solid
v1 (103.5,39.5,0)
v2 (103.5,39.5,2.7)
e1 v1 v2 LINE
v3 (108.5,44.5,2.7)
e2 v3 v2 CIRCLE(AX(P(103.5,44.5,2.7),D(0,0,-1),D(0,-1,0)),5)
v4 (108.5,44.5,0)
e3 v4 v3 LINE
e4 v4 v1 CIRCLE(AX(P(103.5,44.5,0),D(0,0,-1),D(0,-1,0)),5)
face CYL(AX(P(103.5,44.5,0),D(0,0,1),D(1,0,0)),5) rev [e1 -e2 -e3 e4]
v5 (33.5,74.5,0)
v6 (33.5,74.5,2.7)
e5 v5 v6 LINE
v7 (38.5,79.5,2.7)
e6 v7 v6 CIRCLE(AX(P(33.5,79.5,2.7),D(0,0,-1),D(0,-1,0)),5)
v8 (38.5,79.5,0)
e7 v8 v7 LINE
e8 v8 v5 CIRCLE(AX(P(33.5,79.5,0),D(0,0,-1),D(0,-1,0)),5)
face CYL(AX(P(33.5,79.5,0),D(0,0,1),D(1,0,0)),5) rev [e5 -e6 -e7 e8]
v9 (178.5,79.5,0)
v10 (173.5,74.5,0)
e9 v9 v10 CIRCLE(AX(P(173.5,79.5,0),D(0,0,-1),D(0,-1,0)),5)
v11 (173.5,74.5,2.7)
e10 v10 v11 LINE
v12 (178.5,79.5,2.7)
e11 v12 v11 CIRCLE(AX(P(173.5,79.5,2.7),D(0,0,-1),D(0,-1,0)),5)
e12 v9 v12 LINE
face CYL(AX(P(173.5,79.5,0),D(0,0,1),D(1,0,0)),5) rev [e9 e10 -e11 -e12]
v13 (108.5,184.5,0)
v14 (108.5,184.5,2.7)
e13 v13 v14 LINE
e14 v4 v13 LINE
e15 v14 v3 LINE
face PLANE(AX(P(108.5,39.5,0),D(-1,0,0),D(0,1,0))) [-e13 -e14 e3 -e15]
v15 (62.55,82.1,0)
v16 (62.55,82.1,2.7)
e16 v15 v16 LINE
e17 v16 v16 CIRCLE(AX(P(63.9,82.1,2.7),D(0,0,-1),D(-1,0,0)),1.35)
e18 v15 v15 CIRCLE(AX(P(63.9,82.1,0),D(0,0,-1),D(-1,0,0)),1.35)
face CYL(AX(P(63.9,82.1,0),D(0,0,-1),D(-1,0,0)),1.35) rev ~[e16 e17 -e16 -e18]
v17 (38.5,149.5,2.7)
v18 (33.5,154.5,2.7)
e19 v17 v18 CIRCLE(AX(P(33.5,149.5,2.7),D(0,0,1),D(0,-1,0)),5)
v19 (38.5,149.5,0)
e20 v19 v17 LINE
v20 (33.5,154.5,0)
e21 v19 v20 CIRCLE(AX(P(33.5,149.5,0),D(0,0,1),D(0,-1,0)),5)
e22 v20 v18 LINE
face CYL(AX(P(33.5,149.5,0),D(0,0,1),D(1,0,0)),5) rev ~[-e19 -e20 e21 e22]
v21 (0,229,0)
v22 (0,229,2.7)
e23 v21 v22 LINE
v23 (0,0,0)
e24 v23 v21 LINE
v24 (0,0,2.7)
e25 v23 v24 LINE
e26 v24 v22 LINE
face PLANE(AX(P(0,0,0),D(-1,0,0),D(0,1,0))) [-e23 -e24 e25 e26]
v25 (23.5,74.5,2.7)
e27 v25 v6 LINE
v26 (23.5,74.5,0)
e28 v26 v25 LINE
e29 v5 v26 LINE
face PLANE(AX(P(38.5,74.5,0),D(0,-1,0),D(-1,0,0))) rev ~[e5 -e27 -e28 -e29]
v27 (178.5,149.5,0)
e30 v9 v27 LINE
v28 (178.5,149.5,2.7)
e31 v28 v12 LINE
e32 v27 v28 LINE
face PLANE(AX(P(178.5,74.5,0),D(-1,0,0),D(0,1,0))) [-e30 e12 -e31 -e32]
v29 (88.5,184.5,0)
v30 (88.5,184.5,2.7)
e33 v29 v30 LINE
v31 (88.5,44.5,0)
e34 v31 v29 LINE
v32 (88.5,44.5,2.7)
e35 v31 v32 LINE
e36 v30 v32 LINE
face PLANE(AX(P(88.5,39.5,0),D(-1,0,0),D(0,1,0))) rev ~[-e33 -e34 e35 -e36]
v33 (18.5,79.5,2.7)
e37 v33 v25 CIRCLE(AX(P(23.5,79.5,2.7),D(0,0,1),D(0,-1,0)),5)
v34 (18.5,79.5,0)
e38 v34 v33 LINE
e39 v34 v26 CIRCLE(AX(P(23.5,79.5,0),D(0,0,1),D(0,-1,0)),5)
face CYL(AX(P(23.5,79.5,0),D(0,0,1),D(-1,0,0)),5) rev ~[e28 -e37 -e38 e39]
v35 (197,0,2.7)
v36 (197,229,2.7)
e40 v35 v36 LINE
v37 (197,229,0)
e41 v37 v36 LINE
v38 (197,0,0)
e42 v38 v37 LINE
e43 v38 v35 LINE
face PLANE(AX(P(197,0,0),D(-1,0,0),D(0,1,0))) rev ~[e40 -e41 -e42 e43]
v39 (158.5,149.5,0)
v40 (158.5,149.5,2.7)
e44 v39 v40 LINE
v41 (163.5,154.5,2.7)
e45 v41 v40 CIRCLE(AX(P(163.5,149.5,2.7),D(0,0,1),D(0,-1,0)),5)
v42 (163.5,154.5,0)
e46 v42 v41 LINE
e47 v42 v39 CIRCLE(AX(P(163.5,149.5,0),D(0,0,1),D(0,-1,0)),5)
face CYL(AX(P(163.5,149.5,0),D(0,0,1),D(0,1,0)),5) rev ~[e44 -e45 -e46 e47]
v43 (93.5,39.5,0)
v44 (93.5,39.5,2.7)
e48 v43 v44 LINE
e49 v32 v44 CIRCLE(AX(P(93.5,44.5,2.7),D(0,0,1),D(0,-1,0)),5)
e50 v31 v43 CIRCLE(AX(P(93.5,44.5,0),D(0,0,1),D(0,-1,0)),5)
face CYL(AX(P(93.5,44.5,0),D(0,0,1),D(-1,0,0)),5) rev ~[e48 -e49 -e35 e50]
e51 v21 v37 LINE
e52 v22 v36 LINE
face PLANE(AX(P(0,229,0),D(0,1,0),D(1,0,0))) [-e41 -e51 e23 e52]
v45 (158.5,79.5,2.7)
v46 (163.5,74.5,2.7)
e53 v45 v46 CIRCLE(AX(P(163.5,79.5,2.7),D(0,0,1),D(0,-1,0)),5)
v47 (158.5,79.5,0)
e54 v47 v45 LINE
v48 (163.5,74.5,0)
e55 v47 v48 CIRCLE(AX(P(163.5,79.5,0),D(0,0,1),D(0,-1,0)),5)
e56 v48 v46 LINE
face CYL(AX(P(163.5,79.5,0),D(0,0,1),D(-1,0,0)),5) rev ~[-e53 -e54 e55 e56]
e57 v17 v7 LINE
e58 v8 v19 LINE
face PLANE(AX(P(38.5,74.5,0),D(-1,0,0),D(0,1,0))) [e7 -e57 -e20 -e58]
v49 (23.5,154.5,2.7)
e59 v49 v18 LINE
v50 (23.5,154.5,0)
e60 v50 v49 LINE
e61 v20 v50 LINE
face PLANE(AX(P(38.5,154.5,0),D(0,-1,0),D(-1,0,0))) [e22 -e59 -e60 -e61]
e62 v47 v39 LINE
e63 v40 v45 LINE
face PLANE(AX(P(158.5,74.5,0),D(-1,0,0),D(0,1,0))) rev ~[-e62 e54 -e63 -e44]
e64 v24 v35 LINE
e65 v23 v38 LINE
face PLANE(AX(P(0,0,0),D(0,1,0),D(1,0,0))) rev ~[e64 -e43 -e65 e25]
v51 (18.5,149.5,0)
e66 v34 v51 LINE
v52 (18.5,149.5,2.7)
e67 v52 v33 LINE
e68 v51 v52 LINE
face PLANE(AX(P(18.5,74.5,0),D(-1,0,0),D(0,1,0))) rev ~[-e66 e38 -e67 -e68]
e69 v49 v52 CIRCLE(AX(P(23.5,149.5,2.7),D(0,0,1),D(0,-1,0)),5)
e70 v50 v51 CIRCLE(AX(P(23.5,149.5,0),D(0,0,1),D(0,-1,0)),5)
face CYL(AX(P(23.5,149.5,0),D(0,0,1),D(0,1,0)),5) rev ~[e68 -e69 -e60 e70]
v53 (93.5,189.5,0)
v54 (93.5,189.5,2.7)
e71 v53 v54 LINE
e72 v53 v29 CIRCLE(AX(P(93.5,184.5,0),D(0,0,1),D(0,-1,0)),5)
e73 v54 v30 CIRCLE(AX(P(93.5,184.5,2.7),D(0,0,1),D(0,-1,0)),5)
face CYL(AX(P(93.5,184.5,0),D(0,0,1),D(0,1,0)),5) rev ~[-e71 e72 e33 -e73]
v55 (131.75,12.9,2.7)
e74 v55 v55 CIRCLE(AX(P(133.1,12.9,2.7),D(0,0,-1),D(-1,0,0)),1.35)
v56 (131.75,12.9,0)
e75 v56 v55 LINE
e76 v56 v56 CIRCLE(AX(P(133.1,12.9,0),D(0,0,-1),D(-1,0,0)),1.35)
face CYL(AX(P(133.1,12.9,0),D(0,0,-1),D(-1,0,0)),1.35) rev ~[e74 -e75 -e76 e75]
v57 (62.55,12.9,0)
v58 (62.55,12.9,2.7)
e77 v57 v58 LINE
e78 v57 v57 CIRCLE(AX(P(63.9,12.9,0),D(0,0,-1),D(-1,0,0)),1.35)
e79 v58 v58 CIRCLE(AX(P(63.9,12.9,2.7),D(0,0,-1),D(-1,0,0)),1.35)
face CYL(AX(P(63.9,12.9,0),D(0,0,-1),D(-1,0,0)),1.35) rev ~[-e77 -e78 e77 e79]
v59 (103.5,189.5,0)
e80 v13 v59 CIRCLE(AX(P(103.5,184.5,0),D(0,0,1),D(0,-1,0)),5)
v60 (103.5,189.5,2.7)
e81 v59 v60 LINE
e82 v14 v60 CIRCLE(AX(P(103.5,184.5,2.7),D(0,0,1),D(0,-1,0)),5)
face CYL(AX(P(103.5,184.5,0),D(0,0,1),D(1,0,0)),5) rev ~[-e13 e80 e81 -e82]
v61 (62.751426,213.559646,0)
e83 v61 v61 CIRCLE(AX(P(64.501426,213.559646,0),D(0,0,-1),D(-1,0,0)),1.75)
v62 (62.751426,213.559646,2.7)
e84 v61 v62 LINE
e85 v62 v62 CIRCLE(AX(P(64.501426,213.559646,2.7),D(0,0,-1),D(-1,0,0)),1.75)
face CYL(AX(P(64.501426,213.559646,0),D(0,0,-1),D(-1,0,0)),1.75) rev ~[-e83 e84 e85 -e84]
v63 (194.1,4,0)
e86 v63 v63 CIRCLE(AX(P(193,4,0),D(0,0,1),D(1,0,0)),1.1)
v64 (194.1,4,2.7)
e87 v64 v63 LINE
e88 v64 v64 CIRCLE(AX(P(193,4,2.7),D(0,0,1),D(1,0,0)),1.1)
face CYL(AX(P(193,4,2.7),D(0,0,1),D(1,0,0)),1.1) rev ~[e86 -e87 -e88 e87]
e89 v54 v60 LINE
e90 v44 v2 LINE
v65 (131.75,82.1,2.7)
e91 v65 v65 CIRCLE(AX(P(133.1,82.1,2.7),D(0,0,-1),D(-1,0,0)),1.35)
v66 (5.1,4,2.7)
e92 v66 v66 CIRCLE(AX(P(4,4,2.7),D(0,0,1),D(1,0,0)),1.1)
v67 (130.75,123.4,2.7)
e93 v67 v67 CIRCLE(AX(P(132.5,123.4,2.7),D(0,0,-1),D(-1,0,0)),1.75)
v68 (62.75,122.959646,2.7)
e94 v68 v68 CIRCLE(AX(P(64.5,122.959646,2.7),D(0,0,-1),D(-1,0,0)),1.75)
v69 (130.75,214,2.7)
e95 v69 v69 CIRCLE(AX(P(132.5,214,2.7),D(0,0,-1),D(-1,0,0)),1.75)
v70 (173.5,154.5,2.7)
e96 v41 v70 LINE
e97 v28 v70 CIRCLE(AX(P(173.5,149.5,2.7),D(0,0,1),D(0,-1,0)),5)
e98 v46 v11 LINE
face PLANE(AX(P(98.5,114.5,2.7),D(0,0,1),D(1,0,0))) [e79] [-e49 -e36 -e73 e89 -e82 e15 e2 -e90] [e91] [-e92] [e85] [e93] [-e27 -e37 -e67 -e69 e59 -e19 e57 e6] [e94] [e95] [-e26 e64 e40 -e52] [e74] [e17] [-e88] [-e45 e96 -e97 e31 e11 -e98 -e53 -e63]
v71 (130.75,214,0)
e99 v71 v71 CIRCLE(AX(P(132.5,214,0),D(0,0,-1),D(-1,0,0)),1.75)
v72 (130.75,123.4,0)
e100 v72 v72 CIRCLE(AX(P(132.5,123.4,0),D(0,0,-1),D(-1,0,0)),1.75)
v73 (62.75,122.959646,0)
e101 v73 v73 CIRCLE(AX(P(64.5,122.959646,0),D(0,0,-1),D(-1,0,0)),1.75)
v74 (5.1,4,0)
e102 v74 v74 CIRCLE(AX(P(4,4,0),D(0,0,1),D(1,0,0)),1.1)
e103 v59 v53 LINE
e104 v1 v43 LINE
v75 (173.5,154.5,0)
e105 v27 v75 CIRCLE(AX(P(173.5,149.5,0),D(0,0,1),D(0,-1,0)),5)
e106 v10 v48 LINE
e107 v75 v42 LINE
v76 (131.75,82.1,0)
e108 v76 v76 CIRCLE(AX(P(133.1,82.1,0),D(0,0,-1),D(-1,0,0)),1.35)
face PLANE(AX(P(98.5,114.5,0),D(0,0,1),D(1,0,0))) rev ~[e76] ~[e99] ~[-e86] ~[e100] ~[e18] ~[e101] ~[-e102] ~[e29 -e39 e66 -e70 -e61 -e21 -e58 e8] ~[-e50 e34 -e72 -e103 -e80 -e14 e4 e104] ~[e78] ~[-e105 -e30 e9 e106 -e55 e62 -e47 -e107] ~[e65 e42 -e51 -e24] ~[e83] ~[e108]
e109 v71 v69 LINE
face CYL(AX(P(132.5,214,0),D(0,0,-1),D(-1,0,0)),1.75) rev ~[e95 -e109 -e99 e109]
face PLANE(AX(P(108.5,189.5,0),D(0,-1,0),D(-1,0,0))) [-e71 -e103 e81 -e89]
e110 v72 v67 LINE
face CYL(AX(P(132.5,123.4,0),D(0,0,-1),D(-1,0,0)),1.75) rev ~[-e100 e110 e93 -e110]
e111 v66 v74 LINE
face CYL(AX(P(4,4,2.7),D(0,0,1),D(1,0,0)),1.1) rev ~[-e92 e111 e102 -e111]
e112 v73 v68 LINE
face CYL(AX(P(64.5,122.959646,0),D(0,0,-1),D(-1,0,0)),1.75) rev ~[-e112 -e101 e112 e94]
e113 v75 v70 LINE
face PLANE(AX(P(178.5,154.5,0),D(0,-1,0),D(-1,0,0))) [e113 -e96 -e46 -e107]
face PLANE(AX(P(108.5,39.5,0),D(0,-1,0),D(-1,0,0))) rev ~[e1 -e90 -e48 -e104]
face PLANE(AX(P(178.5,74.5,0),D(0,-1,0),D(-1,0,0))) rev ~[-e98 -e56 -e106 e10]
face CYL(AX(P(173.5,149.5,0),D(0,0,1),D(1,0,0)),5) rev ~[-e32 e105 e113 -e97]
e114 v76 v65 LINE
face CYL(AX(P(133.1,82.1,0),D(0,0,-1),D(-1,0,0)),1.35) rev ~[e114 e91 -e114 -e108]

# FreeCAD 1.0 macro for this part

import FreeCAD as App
import Part
import Sketcher
from FreeCAD import Vector


def edges_at(feature, points):
    """Names of the edges that pass closest to the given points."""
    edges = feature.Shape.Edges
    near = lambda p: min(range(len(edges)), key=lambda i: edges[i].distToShape(Part.Vertex(*p))[0])
    return sorted({f"Edge{near(p) + 1}" for p in points})

doc = App.newDocument("Part")
body = doc.addObject("PartDesign::Body", "Body")

sketch1 = doc.addObject("Sketcher::SketchObject", "Sketch")
body.addObject(sketch1)
sketch1.AttachmentSupport = (doc.XY_Plane, [""])
sketch1.MapMode = "FlatFace"
sketch1.addGeometry(Part.LineSegment(Vector(0, 229, 0), Vector(0, 0, 0)), False)
sketch1.addGeometry(Part.LineSegment(Vector(0, 0, 0), Vector(197, 0, 0)), False)
sketch1.addGeometry(Part.LineSegment(Vector(197, 0, 0), Vector(197, 229, 0)), False)
sketch1.addGeometry(Part.LineSegment(Vector(197, 229, 0), Vector(0, 229, 0)), False)
sketch1.addConstraint(Sketcher.Constraint("Coincident", 0, 2, 1, 1))
sketch1.addConstraint(Sketcher.Constraint("Coincident", 1, 2, 2, 1))
sketch1.addConstraint(Sketcher.Constraint("Coincident", 2, 2, 3, 1))
sketch1.addConstraint(Sketcher.Constraint("Coincident", 3, 2, 0, 1))
sketch1.addConstraint(Sketcher.Constraint("Vertical", 0))
sketch1.addConstraint(Sketcher.Constraint("Horizontal", 1))
sketch1.addConstraint(Sketcher.Constraint("Vertical", 2))
sketch1.addConstraint(Sketcher.Constraint("Horizontal", 3))
sketch1.addConstraint(Sketcher.Constraint("Coincident", 0, 2, -1, 1))
sketch1.addConstraint(Sketcher.Constraint("DistanceX", 1, 1, 1, 2, 197.0))
sketch1.addConstraint(Sketcher.Constraint("DistanceY", 0, 2, 0, 1, 229.0))
pad1 = doc.addObject("PartDesign::Pad", "Pad")
body.addObject(pad1)
pad1.Profile = sketch1
pad1.Length = 2.7

sketch2 = doc.addObject("Sketcher::SketchObject", "Sketch001")
body.addObject(sketch2)
sketch2.AttachmentSupport = (doc.XY_Plane, [""])
sketch2.MapMode = "FlatFace"
sketch2.AttachmentOffset = App.Placement(Vector(0, 0, 2.7), App.Rotation())
sketch2.addGeometry(Part.Circle(Vector(4, 4, 0), Vector(0, 0, 1), 1.1), False)
sketch2.addGeometry(Part.Circle(Vector(193, 4, 0), Vector(0, 0, 1), 1.1), False)
sketch2.addConstraint(Sketcher.Constraint("Equal", 0, 1))
sketch2.addConstraint(Sketcher.Constraint("Horizontal", 0, 3, 1, 3))
sketch2.addConstraint(Sketcher.Constraint("Diameter", 0, 2.2))
sketch2.addConstraint(Sketcher.Constraint("DistanceX", -1, 1, 0, 3, 4.0))
sketch2.addConstraint(Sketcher.Constraint("DistanceY", -1, 1, 0, 3, 4.0))
sketch2.addConstraint(Sketcher.Constraint("DistanceX", -1, 1, 1, 3, 193.0))
pocket1 = doc.addObject("PartDesign::Pocket", "Pocket")
body.addObject(pocket1)
pocket1.Profile = sketch2
pocket1.Length = 2.85

sketch3 = doc.addObject("Sketcher::SketchObject", "Sketch002")
body.addObject(sketch3)
sketch3.AttachmentSupport = (doc.XY_Plane, [""])
sketch3.MapMode = "FlatFace"
sketch3.addGeometry(Part.Circle(Vector(133.1, 12.9, 0), Vector(0, 0, 1), 1.4), False)
sketch3.addGeometry(Part.Circle(Vector(133.1, 82.1, 0), Vector(0, 0, 1), 1.4), False)
sketch3.addGeometry(Part.Circle(Vector(63.9, 82.1, 0), Vector(0, 0, 1), 1.4), False)
sketch3.addGeometry(Part.Circle(Vector(63.9, 12.9, 0), Vector(0, 0, 1), 1.4), False)
sketch3.addConstraint(Sketcher.Constraint("Equal", 0, 1))
sketch3.addConstraint(Sketcher.Constraint("Equal", 1, 2))
sketch3.addConstraint(Sketcher.Constraint("Equal", 2, 3))
sketch3.addConstraint(Sketcher.Constraint("Horizontal", 1, 3, 2, 3))
sketch3.addConstraint(Sketcher.Constraint("Horizontal", 0, 3, 3, 3))
sketch3.addConstraint(Sketcher.Constraint("Vertical", 0, 3, 1, 3))
sketch3.addConstraint(Sketcher.Constraint("Vertical", 2, 3, 3, 3))
sketch3.addConstraint(Sketcher.Constraint("Diameter", 0, 2.7))
sketch3.addConstraint(Sketcher.Constraint("DistanceX", -1, 1, 0, 3, 133.1))
sketch3.addConstraint(Sketcher.Constraint("DistanceY", -1, 1, 0, 3, 12.9))
sketch3.addConstraint(Sketcher.Constraint("DistanceY", -1, 1, 1, 3, 82.1))
sketch3.addConstraint(Sketcher.Constraint("DistanceX", -1, 1, 2, 3, 63.9))
pocket2 = doc.addObject("PartDesign::Pocket", "Pocket001")
body.addObject(pocket2)
pocket2.Profile = sketch3
pocket2.Length = 9
pocket2.Reversed = True

sketch4 = doc.addObject("Sketcher::SketchObject", "Sketch003")
body.addObject(sketch4)
sketch4.AttachmentSupport = (doc.XY_Plane, [""])
sketch4.MapMode = "FlatFace"
sketch4.addGeometry(Part.Circle(Vector(132.5, 214, 0), Vector(0, 0, 1), 1.8), False)
sketch4.addGeometry(Part.Circle(Vector(64.5, 213.6, 0), Vector(0, 0, 1), 1.8), False)
sketch4.addGeometry(Part.Circle(Vector(132.5, 123.4, 0), Vector(0, 0, 1), 1.8), False)
sketch4.addGeometry(Part.Circle(Vector(64.5, 123, 0), Vector(0, 0, 1), 1.8), False)
sketch4.addConstraint(Sketcher.Constraint("Equal", 0, 1))
sketch4.addConstraint(Sketcher.Constraint("Equal", 1, 2))
sketch4.addConstraint(Sketcher.Constraint("Equal", 2, 3))
sketch4.addConstraint(Sketcher.Constraint("Vertical", 0, 3, 2, 3))
sketch4.addConstraint(Sketcher.Constraint("Diameter", 0, 3.5))
sketch4.addConstraint(Sketcher.Constraint("DistanceY", -1, 1, 0, 3, 214.0))
sketch4.addConstraint(Sketcher.Constraint("DistanceX", 3, 3, 2, 3, 68.0))
sketch4.addConstraint(Sketcher.Constraint("DistanceX", -1, 1, 0, 3, 132.5))
sketch4.addConstraint(Sketcher.Constraint("DistanceY", -1, 1, 2, 3, 123.4))
sketch4.addConstraint(Sketcher.Constraint("DistanceY", 3, 3, 1, 3, 90.6))
sketch4.addConstraint(Sketcher.Constraint("DistanceX", -1, 1, 1, 3, 64.501426))
sketch4.addConstraint(Sketcher.Constraint("DistanceY", -1, 1, 1, 3, 213.559646))
pocket3 = doc.addObject("PartDesign::Pocket", "Pocket002")
body.addObject(pocket3)
pocket3.Profile = sketch4
pocket3.Length = 10
pocket3.Reversed = True

sketch5 = doc.addObject("Sketcher::SketchObject", "Sketch004")
body.addObject(sketch5)
sketch5.AttachmentSupport = (doc.XY_Plane, [""])
sketch5.MapMode = "FlatFace"
sketch5.addGeometry(Part.LineSegment(Vector(178, 154, 0), Vector(178, 74, 0)), False)
sketch5.addGeometry(Part.LineSegment(Vector(178, 74, 0), Vector(158, 74, 0)), False)
sketch5.addGeometry(Part.LineSegment(Vector(158, 74, 0), Vector(158, 154, 0)), False)
sketch5.addGeometry(Part.LineSegment(Vector(158, 154, 0), Vector(178, 154, 0)), False)
sketch5.addGeometry(Part.LineSegment(Vector(38, 154, 0), Vector(38, 74, 0)), False)
sketch5.addGeometry(Part.LineSegment(Vector(38, 74, 0), Vector(18, 74, 0)), False)
sketch5.addGeometry(Part.LineSegment(Vector(18, 74, 0), Vector(18, 154, 0)), False)
sketch5.addGeometry(Part.LineSegment(Vector(18, 154, 0), Vector(38, 154, 0)), False)
sketch5.addGeometry(Part.LineSegment(Vector(108, 190, 0), Vector(108, 40, 0)), False)
sketch5.addGeometry(Part.LineSegment(Vector(108, 40, 0), Vector(88, 40, 0)), False)
sketch5.addGeometry(Part.LineSegment(Vector(88, 40, 0), Vector(88, 190, 0)), False)
sketch5.addGeometry(Part.LineSegment(Vector(88, 190, 0), Vector(108, 190, 0)), False)
sketch5.addConstraint(Sketcher.Constraint("Coincident", 0, 2, 1, 1))
sketch5.addConstraint(Sketcher.Constraint("Coincident", 1, 2, 2, 1))
sketch5.addConstraint(Sketcher.Constraint("Coincident", 2, 2, 3, 1))
sketch5.addConstraint(Sketcher.Constraint("Coincident", 3, 2, 0, 1))
sketch5.addConstraint(Sketcher.Constraint("Coincident", 4, 2, 5, 1))
sketch5.addConstraint(Sketcher.Constraint("Coincident", 5, 2, 6, 1))
sketch5.addConstraint(Sketcher.Constraint("Coincident", 6, 2, 7, 1))
sketch5.addConstraint(Sketcher.Constraint("Coincident", 7, 2, 4, 1))
sketch5.addConstraint(Sketcher.Constraint("Coincident", 8, 2, 9, 1))
sketch5.addConstraint(Sketcher.Constraint("Coincident", 9, 2, 10, 1))
sketch5.addConstraint(Sketcher.Constraint("Coincident", 10, 2, 11, 1))
sketch5.addConstraint(Sketcher.Constraint("Coincident", 11, 2, 8, 1))
sketch5.addConstraint(Sketcher.Constraint("Vertical", 0))
sketch5.addConstraint(Sketcher.Constraint("Horizontal", 1))
sketch5.addConstraint(Sketcher.Constraint("Vertical", 2))
sketch5.addConstraint(Sketcher.Constraint("Horizontal", 3))
sketch5.addConstraint(Sketcher.Constraint("Vertical", 4))
sketch5.addConstraint(Sketcher.Constraint("Horizontal", 5))
sketch5.addConstraint(Sketcher.Constraint("Vertical", 6))
sketch5.addConstraint(Sketcher.Constraint("Horizontal", 7))
sketch5.addConstraint(Sketcher.Constraint("Vertical", 8))
sketch5.addConstraint(Sketcher.Constraint("Horizontal", 9))
sketch5.addConstraint(Sketcher.Constraint("Vertical", 10))
sketch5.addConstraint(Sketcher.Constraint("Horizontal", 11))
sketch5.addConstraint(Sketcher.Constraint("Horizontal", 1, 2, 4, 2))
sketch5.addConstraint(Sketcher.Constraint("Horizontal", 3, 2, 6, 2))
sketch5.addConstraint(Sketcher.Constraint("Equal", 3, 5))
sketch5.addConstraint(Sketcher.Constraint("Equal", 7, 9))
sketch5.addConstraint(Sketcher.Constraint("DistanceX", 1, 2, 1, 1, 20.0))
sketch5.addConstraint(Sketcher.Constraint("DistanceY", 0, 2, 0, 1, 80.0))
sketch5.addConstraint(Sketcher.Constraint("DistanceY", 8, 2, 8, 1, 150.0))
sketch5.addConstraint(Sketcher.Constraint("DistanceX", 4, 2, 1, 2, 120.0))
sketch5.addConstraint(Sketcher.Constraint("DistanceX", 8, 2, 1, 2, 50.0))
sketch5.addConstraint(Sketcher.Constraint("DistanceY", 8, 2, 1, 2, 35.0))
sketch5.addConstraint(Sketcher.Constraint("DistanceX", -1, 1, 0, 2, 178.5))
sketch5.addConstraint(Sketcher.Constraint("DistanceY", -1, 1, 0, 2, 74.5))
pocket4 = doc.addObject("PartDesign::Pocket", "Pocket003")
body.addObject(pocket4)
pocket4.Profile = sketch5
pocket4.Length = 10
pocket4.Reversed = True
doc.recompute()

fillet = doc.addObject("PartDesign::Fillet", "Fillet")
body.addObject(fillet)
fillet.Base = (pocket4, edges_at(pocket4, [
    (178.5, 74.5, 1.35),
    (178.5, 154.5, 1.35),
    (158.5, 154.5, 1.35),
    (158.5, 74.5, 1.35),
    (38.5, 74.5, 1.35),
    (38.5, 154.5, 1.35),
    (18.5, 154.5, 1.35),
    (18.5, 74.5, 1.35),
    (108.5, 39.5, 1.35),
    (108.5, 189.5, 1.35),
    (88.5, 189.5, 1.35),
    (88.5, 39.5, 1.35),
]))
fillet.Radius = 5

doc.recompute()
